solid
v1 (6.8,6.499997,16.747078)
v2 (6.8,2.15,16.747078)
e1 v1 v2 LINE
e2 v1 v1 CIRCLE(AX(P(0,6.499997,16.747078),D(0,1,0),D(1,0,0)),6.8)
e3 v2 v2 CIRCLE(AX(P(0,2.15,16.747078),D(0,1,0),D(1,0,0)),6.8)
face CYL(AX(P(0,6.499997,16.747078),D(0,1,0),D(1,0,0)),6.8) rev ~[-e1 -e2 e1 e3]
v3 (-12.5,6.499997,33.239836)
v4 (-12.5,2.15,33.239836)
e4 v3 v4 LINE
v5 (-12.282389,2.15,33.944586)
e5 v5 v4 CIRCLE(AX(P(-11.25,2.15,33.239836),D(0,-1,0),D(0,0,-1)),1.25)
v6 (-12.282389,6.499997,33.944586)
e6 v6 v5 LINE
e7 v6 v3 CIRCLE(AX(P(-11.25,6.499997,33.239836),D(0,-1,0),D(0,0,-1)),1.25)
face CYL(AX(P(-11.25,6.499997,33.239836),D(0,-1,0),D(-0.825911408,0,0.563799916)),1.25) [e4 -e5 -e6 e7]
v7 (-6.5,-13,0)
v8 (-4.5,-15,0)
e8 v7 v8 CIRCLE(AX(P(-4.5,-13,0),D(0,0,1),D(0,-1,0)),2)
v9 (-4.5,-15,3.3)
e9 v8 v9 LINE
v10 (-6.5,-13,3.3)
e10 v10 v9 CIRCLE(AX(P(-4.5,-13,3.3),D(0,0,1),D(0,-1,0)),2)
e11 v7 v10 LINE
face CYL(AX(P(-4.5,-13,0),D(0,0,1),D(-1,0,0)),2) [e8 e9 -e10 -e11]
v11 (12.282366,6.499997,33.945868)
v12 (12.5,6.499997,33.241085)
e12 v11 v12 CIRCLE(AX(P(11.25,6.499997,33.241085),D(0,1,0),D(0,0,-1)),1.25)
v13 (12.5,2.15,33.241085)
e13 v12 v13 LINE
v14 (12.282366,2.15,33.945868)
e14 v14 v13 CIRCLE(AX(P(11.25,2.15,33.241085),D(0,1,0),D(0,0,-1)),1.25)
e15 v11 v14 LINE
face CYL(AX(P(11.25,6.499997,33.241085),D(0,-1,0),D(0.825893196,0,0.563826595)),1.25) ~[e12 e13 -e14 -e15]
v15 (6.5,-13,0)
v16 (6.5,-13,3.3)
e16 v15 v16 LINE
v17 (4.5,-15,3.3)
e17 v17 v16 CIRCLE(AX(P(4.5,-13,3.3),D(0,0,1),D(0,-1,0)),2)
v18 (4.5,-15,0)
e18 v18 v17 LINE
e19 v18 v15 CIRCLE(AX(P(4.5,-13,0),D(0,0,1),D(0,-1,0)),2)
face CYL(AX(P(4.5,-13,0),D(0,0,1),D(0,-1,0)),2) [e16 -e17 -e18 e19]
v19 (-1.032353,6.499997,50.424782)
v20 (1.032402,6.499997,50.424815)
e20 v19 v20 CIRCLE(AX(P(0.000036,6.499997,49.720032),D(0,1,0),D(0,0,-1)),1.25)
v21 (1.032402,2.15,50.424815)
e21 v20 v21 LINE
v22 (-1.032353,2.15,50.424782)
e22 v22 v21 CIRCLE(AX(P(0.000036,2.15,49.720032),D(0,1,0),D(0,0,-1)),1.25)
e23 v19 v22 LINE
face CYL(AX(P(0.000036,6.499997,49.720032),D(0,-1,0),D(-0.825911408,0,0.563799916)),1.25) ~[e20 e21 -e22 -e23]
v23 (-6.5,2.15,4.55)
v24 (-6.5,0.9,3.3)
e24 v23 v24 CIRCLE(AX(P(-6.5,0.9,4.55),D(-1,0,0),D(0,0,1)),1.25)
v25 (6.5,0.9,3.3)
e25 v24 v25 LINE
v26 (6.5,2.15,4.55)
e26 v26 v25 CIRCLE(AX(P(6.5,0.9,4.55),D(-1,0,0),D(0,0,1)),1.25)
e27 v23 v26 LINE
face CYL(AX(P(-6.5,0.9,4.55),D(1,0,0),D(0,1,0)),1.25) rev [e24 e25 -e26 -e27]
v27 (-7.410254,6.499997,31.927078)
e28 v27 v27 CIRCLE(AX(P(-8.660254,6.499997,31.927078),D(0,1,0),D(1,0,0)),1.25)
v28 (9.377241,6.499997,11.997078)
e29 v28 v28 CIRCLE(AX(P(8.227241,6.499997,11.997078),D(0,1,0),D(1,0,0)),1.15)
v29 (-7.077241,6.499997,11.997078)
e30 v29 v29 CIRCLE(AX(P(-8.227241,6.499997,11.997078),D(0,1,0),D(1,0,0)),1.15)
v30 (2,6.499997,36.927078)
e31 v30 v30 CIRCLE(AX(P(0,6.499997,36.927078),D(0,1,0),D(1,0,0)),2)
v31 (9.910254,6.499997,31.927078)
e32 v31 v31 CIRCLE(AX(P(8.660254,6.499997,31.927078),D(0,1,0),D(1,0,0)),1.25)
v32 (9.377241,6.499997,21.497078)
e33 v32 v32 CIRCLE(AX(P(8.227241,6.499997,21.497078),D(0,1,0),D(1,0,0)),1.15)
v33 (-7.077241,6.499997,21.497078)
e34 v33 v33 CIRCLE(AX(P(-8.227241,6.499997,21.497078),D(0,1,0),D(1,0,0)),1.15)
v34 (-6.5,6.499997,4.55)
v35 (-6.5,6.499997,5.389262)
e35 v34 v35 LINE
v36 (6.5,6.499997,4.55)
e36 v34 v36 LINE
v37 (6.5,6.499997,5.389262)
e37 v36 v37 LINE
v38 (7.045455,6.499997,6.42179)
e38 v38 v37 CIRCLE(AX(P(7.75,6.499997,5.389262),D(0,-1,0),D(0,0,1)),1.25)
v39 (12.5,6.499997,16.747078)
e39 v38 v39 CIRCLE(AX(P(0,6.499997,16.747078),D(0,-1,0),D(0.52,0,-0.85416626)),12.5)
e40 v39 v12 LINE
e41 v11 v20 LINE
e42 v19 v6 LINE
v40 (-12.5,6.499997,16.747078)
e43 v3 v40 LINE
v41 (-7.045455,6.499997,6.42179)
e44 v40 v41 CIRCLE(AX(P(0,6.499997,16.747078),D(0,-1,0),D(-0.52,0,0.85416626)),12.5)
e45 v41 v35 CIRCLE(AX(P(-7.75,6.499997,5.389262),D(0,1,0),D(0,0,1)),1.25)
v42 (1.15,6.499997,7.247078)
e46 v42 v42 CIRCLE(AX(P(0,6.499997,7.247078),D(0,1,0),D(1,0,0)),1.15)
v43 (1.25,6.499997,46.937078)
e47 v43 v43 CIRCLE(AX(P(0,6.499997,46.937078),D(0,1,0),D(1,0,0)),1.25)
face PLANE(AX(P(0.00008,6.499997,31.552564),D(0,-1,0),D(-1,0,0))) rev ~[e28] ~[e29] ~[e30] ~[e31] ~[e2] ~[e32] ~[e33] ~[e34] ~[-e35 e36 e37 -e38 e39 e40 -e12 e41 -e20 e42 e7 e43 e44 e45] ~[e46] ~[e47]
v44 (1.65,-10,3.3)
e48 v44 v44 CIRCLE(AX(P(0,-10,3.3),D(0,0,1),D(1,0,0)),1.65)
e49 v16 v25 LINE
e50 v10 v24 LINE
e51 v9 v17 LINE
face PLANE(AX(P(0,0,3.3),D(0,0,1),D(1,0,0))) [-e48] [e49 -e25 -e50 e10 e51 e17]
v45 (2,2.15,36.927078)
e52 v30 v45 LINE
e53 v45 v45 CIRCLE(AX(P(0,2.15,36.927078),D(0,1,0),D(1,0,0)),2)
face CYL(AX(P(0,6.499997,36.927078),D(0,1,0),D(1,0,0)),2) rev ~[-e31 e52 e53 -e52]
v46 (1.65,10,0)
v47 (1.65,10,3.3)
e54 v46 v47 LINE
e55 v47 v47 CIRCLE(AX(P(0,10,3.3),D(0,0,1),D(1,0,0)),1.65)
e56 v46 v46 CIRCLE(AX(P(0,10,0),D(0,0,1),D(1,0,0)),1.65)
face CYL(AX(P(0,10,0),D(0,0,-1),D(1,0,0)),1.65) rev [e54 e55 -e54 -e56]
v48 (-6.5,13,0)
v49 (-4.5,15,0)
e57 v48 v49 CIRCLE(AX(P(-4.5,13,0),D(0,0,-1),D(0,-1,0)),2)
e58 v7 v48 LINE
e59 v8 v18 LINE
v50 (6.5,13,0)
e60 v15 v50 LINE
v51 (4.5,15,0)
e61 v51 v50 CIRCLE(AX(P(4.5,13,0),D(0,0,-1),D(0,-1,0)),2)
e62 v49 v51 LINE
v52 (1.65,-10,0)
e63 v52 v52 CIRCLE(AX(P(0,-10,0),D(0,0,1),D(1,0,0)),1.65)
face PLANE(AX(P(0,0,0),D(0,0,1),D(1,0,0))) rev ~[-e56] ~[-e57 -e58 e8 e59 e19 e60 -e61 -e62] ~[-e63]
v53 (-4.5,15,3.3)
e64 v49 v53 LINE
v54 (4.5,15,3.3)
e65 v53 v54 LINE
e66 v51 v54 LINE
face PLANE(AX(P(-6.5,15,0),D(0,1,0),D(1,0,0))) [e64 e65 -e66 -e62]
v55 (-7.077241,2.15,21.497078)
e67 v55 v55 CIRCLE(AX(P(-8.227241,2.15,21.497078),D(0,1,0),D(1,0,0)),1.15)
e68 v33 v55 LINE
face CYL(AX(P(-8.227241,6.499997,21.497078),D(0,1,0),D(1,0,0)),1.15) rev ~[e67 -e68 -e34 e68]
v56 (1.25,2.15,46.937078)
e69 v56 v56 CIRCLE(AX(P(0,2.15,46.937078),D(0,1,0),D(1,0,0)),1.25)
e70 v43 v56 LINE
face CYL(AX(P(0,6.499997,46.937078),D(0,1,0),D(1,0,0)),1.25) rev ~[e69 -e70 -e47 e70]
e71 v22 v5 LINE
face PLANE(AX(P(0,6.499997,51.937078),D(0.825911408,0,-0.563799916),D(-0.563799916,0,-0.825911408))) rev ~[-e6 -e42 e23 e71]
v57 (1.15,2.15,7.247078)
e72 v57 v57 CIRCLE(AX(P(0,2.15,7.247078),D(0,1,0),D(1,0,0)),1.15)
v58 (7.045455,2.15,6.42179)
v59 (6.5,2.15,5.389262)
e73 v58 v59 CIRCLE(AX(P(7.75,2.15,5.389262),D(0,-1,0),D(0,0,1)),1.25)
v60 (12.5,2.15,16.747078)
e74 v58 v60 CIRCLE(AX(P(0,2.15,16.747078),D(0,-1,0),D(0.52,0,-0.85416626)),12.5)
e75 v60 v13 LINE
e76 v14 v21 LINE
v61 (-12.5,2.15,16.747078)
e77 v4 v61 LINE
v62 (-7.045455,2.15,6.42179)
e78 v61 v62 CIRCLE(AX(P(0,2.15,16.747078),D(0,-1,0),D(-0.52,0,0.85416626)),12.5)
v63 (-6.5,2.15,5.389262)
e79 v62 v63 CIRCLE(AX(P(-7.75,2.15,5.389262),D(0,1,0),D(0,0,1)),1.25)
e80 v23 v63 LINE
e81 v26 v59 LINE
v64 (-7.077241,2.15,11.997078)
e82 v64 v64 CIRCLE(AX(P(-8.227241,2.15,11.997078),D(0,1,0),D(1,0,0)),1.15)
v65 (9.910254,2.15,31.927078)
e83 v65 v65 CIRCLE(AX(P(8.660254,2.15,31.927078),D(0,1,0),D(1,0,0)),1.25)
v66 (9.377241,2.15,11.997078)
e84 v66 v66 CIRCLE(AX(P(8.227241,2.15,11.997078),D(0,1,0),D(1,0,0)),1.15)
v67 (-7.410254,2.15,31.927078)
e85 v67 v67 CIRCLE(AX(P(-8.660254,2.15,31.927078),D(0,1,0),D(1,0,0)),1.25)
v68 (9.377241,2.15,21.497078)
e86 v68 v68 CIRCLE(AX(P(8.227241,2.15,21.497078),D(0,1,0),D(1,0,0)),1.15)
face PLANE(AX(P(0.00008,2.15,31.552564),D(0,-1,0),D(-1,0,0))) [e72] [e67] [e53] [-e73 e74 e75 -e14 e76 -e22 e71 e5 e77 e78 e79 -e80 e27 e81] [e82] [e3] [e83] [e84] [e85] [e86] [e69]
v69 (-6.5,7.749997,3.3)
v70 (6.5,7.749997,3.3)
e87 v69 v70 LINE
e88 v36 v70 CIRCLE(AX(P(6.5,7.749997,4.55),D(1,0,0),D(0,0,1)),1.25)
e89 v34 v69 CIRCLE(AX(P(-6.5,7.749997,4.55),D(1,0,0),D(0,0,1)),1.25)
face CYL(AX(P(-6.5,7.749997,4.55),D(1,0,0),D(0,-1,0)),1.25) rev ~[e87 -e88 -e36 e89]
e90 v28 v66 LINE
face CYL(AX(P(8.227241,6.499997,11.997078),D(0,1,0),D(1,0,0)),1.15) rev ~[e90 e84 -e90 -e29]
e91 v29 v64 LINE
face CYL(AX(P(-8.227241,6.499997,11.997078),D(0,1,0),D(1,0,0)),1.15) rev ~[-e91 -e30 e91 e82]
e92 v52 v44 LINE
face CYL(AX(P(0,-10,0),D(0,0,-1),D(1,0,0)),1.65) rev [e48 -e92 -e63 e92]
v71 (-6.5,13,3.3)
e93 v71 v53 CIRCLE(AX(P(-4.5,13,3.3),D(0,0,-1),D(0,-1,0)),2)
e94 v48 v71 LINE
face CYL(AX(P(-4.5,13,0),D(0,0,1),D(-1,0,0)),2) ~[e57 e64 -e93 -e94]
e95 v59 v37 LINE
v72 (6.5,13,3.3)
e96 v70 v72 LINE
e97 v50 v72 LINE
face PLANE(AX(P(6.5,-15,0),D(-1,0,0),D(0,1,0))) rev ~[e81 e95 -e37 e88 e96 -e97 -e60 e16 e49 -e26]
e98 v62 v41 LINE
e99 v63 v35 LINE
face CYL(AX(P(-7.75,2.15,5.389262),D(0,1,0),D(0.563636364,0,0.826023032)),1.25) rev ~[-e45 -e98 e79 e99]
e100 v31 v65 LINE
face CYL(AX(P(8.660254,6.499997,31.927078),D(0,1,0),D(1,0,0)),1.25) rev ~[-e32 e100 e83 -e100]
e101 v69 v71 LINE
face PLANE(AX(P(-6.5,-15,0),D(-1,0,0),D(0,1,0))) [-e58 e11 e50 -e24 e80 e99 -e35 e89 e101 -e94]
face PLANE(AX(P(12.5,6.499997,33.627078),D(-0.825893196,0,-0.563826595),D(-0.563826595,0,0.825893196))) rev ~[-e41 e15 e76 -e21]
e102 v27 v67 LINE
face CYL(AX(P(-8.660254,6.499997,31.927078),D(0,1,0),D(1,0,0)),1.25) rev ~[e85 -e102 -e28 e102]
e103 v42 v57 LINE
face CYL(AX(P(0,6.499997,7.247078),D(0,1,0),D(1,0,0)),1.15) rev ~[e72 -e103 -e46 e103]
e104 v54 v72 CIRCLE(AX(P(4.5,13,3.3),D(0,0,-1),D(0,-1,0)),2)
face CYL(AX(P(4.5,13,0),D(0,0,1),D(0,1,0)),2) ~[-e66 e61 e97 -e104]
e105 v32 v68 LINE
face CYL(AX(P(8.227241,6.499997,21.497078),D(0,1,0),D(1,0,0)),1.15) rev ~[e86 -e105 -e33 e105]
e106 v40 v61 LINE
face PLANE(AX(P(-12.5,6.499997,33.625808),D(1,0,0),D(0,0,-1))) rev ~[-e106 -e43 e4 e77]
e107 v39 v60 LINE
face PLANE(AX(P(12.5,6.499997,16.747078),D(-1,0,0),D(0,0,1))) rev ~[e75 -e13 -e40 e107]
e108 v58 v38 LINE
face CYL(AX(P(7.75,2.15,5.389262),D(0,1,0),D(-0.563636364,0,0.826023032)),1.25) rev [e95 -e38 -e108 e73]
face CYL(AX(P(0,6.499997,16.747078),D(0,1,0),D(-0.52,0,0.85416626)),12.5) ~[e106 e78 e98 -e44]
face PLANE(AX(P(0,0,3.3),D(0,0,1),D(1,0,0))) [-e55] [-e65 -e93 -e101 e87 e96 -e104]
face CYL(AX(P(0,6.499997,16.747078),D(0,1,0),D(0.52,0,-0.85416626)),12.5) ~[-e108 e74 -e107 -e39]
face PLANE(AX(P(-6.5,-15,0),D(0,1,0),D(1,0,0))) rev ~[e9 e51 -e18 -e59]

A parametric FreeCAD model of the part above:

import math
import FreeCAD as App
import Part
import Sketcher

V = App.Vector


def edges_at(feature, points):
    """Names of the edges that pass closest to the given points."""
    edges = feature.Shape.Edges
    near = lambda p: min(range(len(edges)), key=lambda i: edges[i].distToShape(Part.Vertex(*p))[0])
    return sorted({f"Edge{near(p) + 1}" for p in points})

doc = App.newDocument("Part")
body = doc.addObject("PartDesign::Body", "Body")

# Sketch on XY plane
sketch1 = doc.addObject("Sketcher::SketchObject", "Sketch")
body.addObject(sketch1)
sketch1.AttachmentSupport = (doc.XY_Plane, [""])
sketch1.MapMode = "FlatFace"
sketch1.addGeometry([
    Part.LineSegment(V(-6.5, 15, 0), V(-6.5, -15, 0)),  # 0
    Part.LineSegment(V(-6.5, -15, 0), V(6.5, -15, 0)),  # 1
    Part.LineSegment(V(6.5, -15, 0), V(6.5, 15, 0)),  # 2
    Part.LineSegment(V(6.5, 15, 0), V(-6.5, 15, 0)),  # 3
    Part.Circle(V(0, -10, 0), V(0, 0, 1), 1.6),  # 4
    Part.Circle(V(0, 10, 0), V(0, 0, 1), 1.6),  # 5
], False)
sketch1.addConstraint([
    Sketcher.Constraint("Coincident", 0, 2, 1, 1),
    Sketcher.Constraint("Coincident", 1, 2, 2, 1),
    Sketcher.Constraint("Coincident", 2, 2, 3, 1),
    Sketcher.Constraint("Coincident", 3, 2, 0, 1),
    Sketcher.Constraint("Vertical", 0),
    Sketcher.Constraint("Horizontal", 1),
    Sketcher.Constraint("Vertical", 2),
    Sketcher.Constraint("Horizontal", 3),
    Sketcher.Constraint("Equal", 4, 5),
    Sketcher.Constraint("Symmetric", 4, 3, 5, 3, -1, 1),
    Sketcher.Constraint("Symmetric", 0, 2, 2, 2, -1, 1),
    Sketcher.Constraint("PointOnObject", 4, 3, -2),
    Sketcher.Constraint("Diameter", 4, 3.3),
    Sketcher.Constraint("DistanceX", 1, 1, 1, 2, 13.0),
    Sketcher.Constraint("DistanceY", 0, 2, 0, 1, 30.0),
    Sketcher.Constraint("DistanceY", 4, 3, -1, 1, 10.0),
])
pad1 = doc.addObject("PartDesign::Pad", "Pad")
body.addObject(pad1)
pad1.Profile = sketch1
pad1.Length = 3.3
doc.recompute()

fillet = doc.addObject("PartDesign::Fillet", "Fillet")
body.addObject(fillet)
fillet.Base = (pad1, edges_at(pad1, [
    (6.5, -15, 1.65),
    (-6.5, -15, 1.65),
    (-6.5, 15, 1.65),
    (6.5, 15, 1.65),
]))
fillet.Radius = 2

# Sketch on XY plane
sketch2 = doc.addObject("Sketcher::SketchObject", "Sketch001")
body.addObject(sketch2)
sketch2.AttachmentSupport = (doc.XY_Plane, [""])
sketch2.MapMode = "FlatFace"
sketch2.AttachmentOffset = App.Placement(V(0, 0, 3.3), App.Rotation())
sketch2.addGeometry([
    Part.LineSegment(V(-6.5, 6.5, 0), V(-6.5, 2.1, 0)),
    Part.LineSegment(V(-6.5, 2.1, 0), V(6.5, 2.1, 0)),
    Part.LineSegment(V(6.5, 2.1, 0), V(6.5, 6.5, 0)),
    Part.LineSegment(V(6.5, 6.5, 0), V(-6.5, 6.5, 0)),
], False)
sketch2.addConstraint([
    Sketcher.Constraint("Coincident", 0, 2, 1, 1),
    Sketcher.Constraint("Coincident", 1, 2, 2, 1),
    Sketcher.Constraint("Coincident", 2, 2, 3, 1),
    Sketcher.Constraint("Coincident", 3, 2, 0, 1),
    Sketcher.Constraint("Vertical", 0),
    Sketcher.Constraint("Horizontal", 1),
    Sketcher.Constraint("Vertical", 2),
    Sketcher.Constraint("Horizontal", 3),
    Sketcher.Constraint("DistanceX", 1, 1, 1, 2, 13.0),
    Sketcher.Constraint("DistanceX", 0, 2, -1, 1, 6.5),
    Sketcher.Constraint("DistanceY", -1, 1, 0, 2, 2.15),
    Sketcher.Constraint("DistanceY", 0, 2, 0, 1, 4.349997),
])
pad2 = doc.addObject("PartDesign::Pad", "Pad001")
body.addObject(pad2)
pad2.Profile = sketch2
pad2.Length = 2.77

# Sketch on XZ plane
sketch3 = doc.addObject("Sketcher::SketchObject", "Sketch002")
body.addObject(sketch3)
sketch3.AttachmentSupport = (doc.XZ_Plane, [""])
sketch3.MapMode = "FlatFace"
sketch3.AttachmentOffset = App.Placement(V(0, 0, -6.499997), App.Rotation())
sketch3.addGeometry([
    Part.LineSegment(V(6, 6, 0), V(-6, 6, 0)),  # 0
    Part.ArcOfCircle(Part.Circle(V(0, 17, 0), V(0, 0, 1), 12), math.radians(121), math.radians(239)),  # 1
    Part.LineSegment(V(-6, 27, 0), V(6, 27, 0)),  # 2
    Part.ArcOfCircle(Part.Circle(V(0, 17, 0), V(0, 0, 1), 12), math.radians(-59), math.radians(59)),  # 3
    Part.Circle(V(0, 17, 0), V(0, 0, 1), 7),  # 4
], False)
sketch3.addConstraint([
    Sketcher.Constraint("Coincident", 0, 2, 1, 2),
    Sketcher.Constraint("Coincident", 1, 1, 2, 1),
    Sketcher.Constraint("Coincident", 2, 2, 3, 2),
    Sketcher.Constraint("Coincident", 3, 1, 0, 1),
    Sketcher.Constraint("Horizontal", 0),
    Sketcher.Constraint("Horizontal", 2),
    Sketcher.Constraint("Coincident", 3, 3, 1, 3),
    Sketcher.Constraint("Coincident", 4, 3, 1, 3),
    Sketcher.Constraint("Equal", 1, 3),
    Sketcher.Constraint("PointOnObject", 1, 3, -2),
    Sketcher.Constraint("Vertical", 0, 2, 1, 1),
    Sketcher.Constraint("Diameter", 4, 13.6),
    Sketcher.Constraint("Radius", 1, 12.5),
    Sketcher.Constraint("DistanceX", 0, 2, 0, 1, 13.0),
    Sketcher.Constraint("DistanceY", -1, 1, 0, 2, 6.07),
])
pad3 = doc.addObject("PartDesign::Pad", "Pad002")
body.addObject(pad3)
pad3.Profile = sketch3
pad3.Length = 4.349997

# Sketch on XZ plane
sketch4 = doc.addObject("Sketcher::SketchObject", "Sketch003")
body.addObject(sketch4)
sketch4.AttachmentSupport = (doc.XZ_Plane, [""])
sketch4.MapMode = "FlatFace"
sketch4.AttachmentOffset = App.Placement(V(0, 0, -6.499997), App.Rotation())
sketch4.addGeometry([
    Part.Circle(V(0, 7.2, 0), V(0, 0, 1), 1.1),  # 0
    Part.Circle(V(-8.2, 12, 0), V(0, 0, 1), 1.1),  # 1
    Part.Circle(V(8.2, 12, 0), V(0, 0, 1), 1.1),  # 2
    Part.Circle(V(-8.2, 21.5, 0), V(0, 0, 1), 1.1),  # 3
    Part.Circle(V(8.2, 21.5, 0), V(0, 0, 1), 1.1),  # 4
], False)
sketch4.addConstraint([
    Sketcher.Constraint("Equal", 0, 1),
    Sketcher.Constraint("Equal", 1, 2),
    Sketcher.Constraint("Equal", 2, 3),
    Sketcher.Constraint("Equal", 3, 4),
    Sketcher.Constraint("Symmetric", 1, 3, 2, 3, -2),
    Sketcher.Constraint("Symmetric", 3, 3, 4, 3, -2),
    Sketcher.Constraint("PointOnObject", 0, 3, -2),
    Sketcher.Constraint("Vertical", 1, 3, 3, 3),
    Sketcher.Constraint("Diameter", 0, 2.3),
    Sketcher.Constraint("DistanceY", 1, 3, 3, 3, 9.5),
    Sketcher.Constraint("DistanceY", 0, 3, 1, 3, 4.75),
    Sketcher.Constraint("DistanceY", -1, 1, 0, 3, 7.247078),
    Sketcher.Constraint("DistanceX", 1, 3, -1, 1, 8.227241),
])
pocket1 = doc.addObject("PartDesign::Pocket", "Pocket")
body.addObject(pocket1)
pocket1.Profile = sketch4
pocket1.Type = "ThroughAll"
pocket1.Reversed = True

# Sketch on XZ plane
sketch5 = doc.addObject("Sketcher::SketchObject", "Sketch004")
body.addObject(sketch5)
sketch5.AttachmentSupport = (doc.XZ_Plane, [""])
sketch5.MapMode = "FlatFace"
sketch5.AttachmentOffset = App.Placement(V(0, 0, -6.499997), App.Rotation())
sketch5.addGeometry([
    Part.LineSegment(V(-12.5, 33.6, 0), V(0, 51.9, 0)),  # 0
    Part.LineSegment(V(0, 51.9, 0), V(12.5, 33.6, 0)),  # 1
    Part.LineSegment(V(12.5, 33.6, 0), V(12.5, 16.7, 0)),  # 2
    Part.ArcOfCircle(Part.Circle(V(0, 16.7, 0), V(0, 0, 1), 12.5), math.radians(0), math.radians(59)),  # 3
    Part.LineSegment(V(6.5, 27.4, 0), V(-6.5, 27.4, 0)),  # 4
    Part.ArcOfCircle(Part.Circle(V(0, 16.7, 0), V(0, 0, 1), 12.5), math.radians(121), math.radians(180)),  # 5
    Part.LineSegment(V(-12.5, 16.7, 0), V(-12.5, 33.6, 0)),  # 6
    Part.Circle(V(0, 46.9, 0), V(0, 0, 1), 1.2),  # 7
    Part.Circle(V(8.7, 31.9, 0), V(0, 0, 1), 1.2),  # 8
    Part.Circle(V(0, 36.9, 0), V(0, 0, 1), 2),  # 9
    Part.Circle(V(-8.7, 31.9, 0), V(0, 0, 1), 1.2),  # 10
], False)
sketch5.addConstraint([
    Sketcher.Constraint("Coincident", 0, 2, 1, 1),
    Sketcher.Constraint("Coincident", 1, 2, 2, 1),
    Sketcher.Constraint("Tangent", 2, 2, 3, 1),
    Sketcher.Constraint("Coincident", 3, 2, 4, 1),
    Sketcher.Constraint("Coincident", 4, 2, 5, 1),
    Sketcher.Constraint("Tangent", 5, 2, 6, 1),
    Sketcher.Constraint("Coincident", 6, 2, 0, 1),
    Sketcher.Constraint("Vertical", 2),
    Sketcher.Constraint("Horizontal", 4),
    Sketcher.Constraint("Vertical", 6),
    Sketcher.Constraint("Coincident", 5, 3, 3, 3),
    Sketcher.Constraint("Equal", 3, 5),
    Sketcher.Constraint("Equal", 7, 8),
    Sketcher.Constraint("Equal", 8, 10),
    Sketcher.Constraint("Symmetric", 8, 3, 10, 3, -2),
    Sketcher.Constraint("PointOnObject", 3, 3, -2),
    Sketcher.Constraint("PointOnObject", 7, 3, -2),
    Sketcher.Constraint("PointOnObject", 9, 3, -2),
    Sketcher.Constraint("PointOnObject", 0, 2, -2),
    Sketcher.Constraint("Diameter", 9, 4.0),
    Sketcher.Constraint("Diameter", 7, 2.5),
    Sketcher.Constraint("Radius", 3, 12.5),
    Sketcher.Constraint("DistanceX", 4, 2, 4, 1, 13.0),
    Sketcher.Constraint("DistanceY", 8, 3, 9, 3, 5.0),
    Sketcher.Constraint("DistanceY", 7, 3, 0, 2, 5.0),
    Sketcher.Constraint("DistanceY", 2, 2, 2, 1, 16.88),
    Sketcher.Constraint("DistanceY", 8, 3, 1, 2, 1.7),
    Sketcher.Constraint("DistanceY", 3, 3, 7, 3, 30.19),
    Sketcher.Constraint("DistanceY", 6, 1, 6, 2, 16.87873),
    Sketcher.Constraint("DistanceY", -1, 1, 3, 3, 16.747078),
    Sketcher.Constraint("DistanceX", 10, 3, 8, 3, 17.320508),
])
pad4 = doc.addObject("PartDesign::Pad", "Pad003")
body.addObject(pad4)
pad4.Profile = sketch5
pad4.Length = 4.349997
doc.recompute()

fillet2 = doc.addObject("PartDesign::Fillet", "Fillet001")
body.addObject(fillet2)
fillet2.Base = (pad4, edges_at(pad4, [
    (-12.5, 4.325, 33.626),
    (0, 4.325, 51.937),
    (12.5, 4.325, 33.627),
    (0, 6.5, 3.3),
    (0, 2.15, 3.3),
    (6.5, 4.325, 6.07),
    (-6.5, 4.325, 6.07),
]))
fillet2.Radius = 1.25

doc.recompute()
